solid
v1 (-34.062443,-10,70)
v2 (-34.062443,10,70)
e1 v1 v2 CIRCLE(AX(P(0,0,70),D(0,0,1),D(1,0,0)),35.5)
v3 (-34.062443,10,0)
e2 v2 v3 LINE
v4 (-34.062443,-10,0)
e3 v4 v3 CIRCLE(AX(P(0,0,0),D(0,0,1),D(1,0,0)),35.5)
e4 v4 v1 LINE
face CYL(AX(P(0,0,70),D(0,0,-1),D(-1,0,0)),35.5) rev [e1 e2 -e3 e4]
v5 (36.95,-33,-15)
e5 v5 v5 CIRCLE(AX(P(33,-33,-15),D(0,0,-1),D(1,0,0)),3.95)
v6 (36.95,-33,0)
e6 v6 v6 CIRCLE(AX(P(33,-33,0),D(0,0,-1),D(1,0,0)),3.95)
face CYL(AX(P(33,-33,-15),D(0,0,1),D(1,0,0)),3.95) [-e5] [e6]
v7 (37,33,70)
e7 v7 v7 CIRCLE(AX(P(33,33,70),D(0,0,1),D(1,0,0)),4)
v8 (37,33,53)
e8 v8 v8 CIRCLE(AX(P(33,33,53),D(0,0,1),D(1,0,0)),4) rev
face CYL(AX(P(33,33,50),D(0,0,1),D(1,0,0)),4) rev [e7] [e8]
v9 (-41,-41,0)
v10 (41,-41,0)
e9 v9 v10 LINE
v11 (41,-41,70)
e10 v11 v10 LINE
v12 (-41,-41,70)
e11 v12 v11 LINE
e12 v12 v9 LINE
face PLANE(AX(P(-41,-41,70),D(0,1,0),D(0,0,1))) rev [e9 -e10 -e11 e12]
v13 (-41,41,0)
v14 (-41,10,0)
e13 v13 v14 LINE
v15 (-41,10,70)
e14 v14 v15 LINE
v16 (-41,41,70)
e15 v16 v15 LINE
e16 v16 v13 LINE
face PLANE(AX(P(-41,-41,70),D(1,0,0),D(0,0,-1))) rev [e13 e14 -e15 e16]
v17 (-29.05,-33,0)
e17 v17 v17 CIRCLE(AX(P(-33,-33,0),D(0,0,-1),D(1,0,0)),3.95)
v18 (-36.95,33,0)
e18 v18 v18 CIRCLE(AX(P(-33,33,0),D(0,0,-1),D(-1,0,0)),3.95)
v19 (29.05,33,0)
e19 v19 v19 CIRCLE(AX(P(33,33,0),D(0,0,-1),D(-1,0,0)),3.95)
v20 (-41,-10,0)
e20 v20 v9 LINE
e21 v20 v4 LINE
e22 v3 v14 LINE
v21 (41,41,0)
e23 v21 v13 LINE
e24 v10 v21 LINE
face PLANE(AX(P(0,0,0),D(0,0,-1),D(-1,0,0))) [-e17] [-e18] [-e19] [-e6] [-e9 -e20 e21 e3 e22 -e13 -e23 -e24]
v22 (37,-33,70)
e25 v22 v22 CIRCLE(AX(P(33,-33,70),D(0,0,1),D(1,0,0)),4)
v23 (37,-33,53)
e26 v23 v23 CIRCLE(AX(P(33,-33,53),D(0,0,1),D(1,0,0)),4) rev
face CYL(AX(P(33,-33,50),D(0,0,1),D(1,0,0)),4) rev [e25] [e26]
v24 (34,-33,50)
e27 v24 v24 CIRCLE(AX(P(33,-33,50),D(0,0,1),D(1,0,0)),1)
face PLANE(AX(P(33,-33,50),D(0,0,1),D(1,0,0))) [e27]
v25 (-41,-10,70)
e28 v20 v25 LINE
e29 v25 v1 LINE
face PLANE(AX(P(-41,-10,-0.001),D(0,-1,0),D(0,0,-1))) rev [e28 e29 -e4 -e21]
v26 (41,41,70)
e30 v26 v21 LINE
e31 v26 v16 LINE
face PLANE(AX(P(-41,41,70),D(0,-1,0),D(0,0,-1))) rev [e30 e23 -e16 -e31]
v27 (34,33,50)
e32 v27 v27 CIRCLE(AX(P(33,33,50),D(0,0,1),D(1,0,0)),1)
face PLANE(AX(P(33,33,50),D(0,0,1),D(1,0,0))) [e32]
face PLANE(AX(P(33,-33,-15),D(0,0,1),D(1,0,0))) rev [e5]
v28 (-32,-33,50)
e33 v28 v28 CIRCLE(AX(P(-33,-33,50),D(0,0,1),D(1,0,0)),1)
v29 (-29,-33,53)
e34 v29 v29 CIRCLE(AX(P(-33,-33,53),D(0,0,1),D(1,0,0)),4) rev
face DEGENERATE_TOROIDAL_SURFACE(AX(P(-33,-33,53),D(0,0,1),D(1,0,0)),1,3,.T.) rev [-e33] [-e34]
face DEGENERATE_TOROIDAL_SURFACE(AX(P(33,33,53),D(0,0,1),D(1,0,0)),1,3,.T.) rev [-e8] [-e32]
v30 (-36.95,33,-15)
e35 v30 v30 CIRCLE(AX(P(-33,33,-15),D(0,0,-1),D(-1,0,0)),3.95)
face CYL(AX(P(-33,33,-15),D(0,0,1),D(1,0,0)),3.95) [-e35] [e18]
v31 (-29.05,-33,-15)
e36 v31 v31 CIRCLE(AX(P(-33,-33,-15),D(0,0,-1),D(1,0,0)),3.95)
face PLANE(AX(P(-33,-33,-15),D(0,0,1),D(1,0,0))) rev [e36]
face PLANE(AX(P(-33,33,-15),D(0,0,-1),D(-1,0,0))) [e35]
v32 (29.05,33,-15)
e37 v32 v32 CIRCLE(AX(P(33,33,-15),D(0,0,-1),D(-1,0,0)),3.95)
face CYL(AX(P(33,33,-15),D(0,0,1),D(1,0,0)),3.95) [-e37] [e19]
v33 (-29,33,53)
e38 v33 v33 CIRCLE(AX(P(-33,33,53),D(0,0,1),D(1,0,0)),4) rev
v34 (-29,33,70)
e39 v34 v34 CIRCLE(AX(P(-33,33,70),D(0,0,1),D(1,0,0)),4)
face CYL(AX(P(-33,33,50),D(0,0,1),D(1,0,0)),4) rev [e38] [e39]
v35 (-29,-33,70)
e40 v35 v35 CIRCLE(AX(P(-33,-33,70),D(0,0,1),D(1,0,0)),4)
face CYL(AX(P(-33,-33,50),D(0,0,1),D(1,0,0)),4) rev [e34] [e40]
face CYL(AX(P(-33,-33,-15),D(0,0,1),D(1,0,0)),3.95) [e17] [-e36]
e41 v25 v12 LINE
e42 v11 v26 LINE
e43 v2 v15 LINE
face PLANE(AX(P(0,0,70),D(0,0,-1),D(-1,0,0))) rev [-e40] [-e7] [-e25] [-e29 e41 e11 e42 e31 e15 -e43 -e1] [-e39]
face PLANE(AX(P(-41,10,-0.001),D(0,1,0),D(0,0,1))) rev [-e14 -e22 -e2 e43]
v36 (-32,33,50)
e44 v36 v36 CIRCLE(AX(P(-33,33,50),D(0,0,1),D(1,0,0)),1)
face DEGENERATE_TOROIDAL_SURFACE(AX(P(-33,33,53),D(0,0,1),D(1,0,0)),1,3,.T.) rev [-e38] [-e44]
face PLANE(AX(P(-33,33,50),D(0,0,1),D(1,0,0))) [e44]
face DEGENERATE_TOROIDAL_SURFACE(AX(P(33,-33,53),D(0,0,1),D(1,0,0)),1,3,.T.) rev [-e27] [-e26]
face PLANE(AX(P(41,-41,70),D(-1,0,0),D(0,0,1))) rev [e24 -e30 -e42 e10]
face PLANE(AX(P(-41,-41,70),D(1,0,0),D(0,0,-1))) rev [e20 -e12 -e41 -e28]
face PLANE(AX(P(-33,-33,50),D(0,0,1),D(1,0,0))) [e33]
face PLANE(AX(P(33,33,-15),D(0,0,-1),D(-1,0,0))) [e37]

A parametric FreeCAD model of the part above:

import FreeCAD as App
import Part
import Sketcher

V = App.Vector


def edges_at(feature, points):
    """Names of the edges that pass closest to the given points."""
    edges = feature.Shape.Edges
    near = lambda p: min(range(len(edges)), key=lambda i: edges[i].distToShape(Part.Vertex(*p))[0])
    return sorted({f"Edge{near(p) + 1}" for p in points})

doc = App.newDocument("Part")
body = doc.addObject("PartDesign::Body", "Body")

# Sketch on XY plane
sketch1 = body.newObject("Sketcher::SketchObject", "Sketch")
sketch1.AttachmentSupport = (doc.getObject("XY_Plane"), [""])
sketch1.MapMode = "FlatFace"
sketch1.addGeometry(Part.LineSegment(V(-41, 41, 0), V(-41, -41, 0)), False)
sketch1.addGeometry(Part.LineSegment(V(-41, -41, 0), V(41, -41, 0)), False)
sketch1.addGeometry(Part.LineSegment(V(41, -41, 0), V(41, 41, 0)), False)
sketch1.addGeometry(Part.LineSegment(V(41, 41, 0), V(-41, 41, 0)), False)
sketch1.addGeometry(Part.Circle(V(0, 0, 0), V(0, 0, 1), 35.5), False)
sketch1.addConstraint(Sketcher.Constraint("Coincident", 0, 2, 1, 1))
sketch1.addConstraint(Sketcher.Constraint("Coincident", 1, 2, 2, 1))
sketch1.addConstraint(Sketcher.Constraint("Coincident", 2, 2, 3, 1))
sketch1.addConstraint(Sketcher.Constraint("Coincident", 3, 2, 0, 1))
sketch1.addConstraint(Sketcher.Constraint("Vertical", 0))
sketch1.addConstraint(Sketcher.Constraint("Horizontal", 1))
sketch1.addConstraint(Sketcher.Constraint("Vertical", 2))
sketch1.addConstraint(Sketcher.Constraint("Horizontal", 3))
sketch1.addConstraint(Sketcher.Constraint("Coincident", 4, 3, -1, 1))
sketch1.addConstraint(Sketcher.Constraint("Symmetric", 0, 2, 2, 2, -1, 1))
sketch1.addConstraint(Sketcher.Constraint("Equal", 3, 0))
sketch1.addConstraint(Sketcher.Constraint("Diameter", 4, 71.0))
sketch1.addConstraint(Sketcher.Constraint("DistanceX", 1, 1, 1, 2, 82.0))
pad1 = body.newObject("PartDesign::Pad", "Pad")
pad1.Profile = sketch1
pad1.Length = 70

# Sketch on XY plane
sketch2 = body.newObject("Sketcher::SketchObject", "Sketch001")
sketch2.AttachmentSupport = (doc.getObject("XY_Plane"), [""])
sketch2.MapMode = "FlatFace"
sketch2.AttachmentOffset = App.Placement(V(0, 0, 70), App.Rotation())
sketch2.addGeometry(Part.Circle(V(-33, 33, 0), V(0, 0, 1), 4), False)
sketch2.addGeometry(Part.Circle(V(33, 33, 0), V(0, 0, 1), 4), False)
sketch2.addGeometry(Part.Circle(V(33, -33, 0), V(0, 0, 1), 4), False)
sketch2.addGeometry(Part.Circle(V(-33, -33, 0), V(0, 0, 1), 4), False)
sketch2.addConstraint(Sketcher.Constraint("Equal", 0, 1))
sketch2.addConstraint(Sketcher.Constraint("Equal", 1, 2))
sketch2.addConstraint(Sketcher.Constraint("Equal", 2, 3))
sketch2.addConstraint(Sketcher.Constraint("Symmetric", 0, 3, 2, 3, -1, 1))
sketch2.addConstraint(Sketcher.Constraint("Symmetric", 1, 3, 3, 3, -1, 1))
sketch2.addConstraint(Sketcher.Constraint("Symmetric", 0, 3, 1, 3, -2))
sketch2.addConstraint(Sketcher.Constraint("Diameter", 0, 8.0))
sketch2.addConstraint(Sketcher.Constraint("DistanceX", 0, 3, -1, 1, 33.0))
sketch2.addConstraint(Sketcher.Constraint("DistanceY", -1, 1, 0, 3, 33.0))
pocket1 = body.newObject("PartDesign::Pocket", "Pocket")
pocket1.Profile = sketch2
pocket1.Length = 20
doc.recompute()

fillet = body.newObject("PartDesign::Fillet", "Fillet")
fillet.Base = (pocket1, edges_at(pocket1, [(-37, 33, 50)]))
fillet.Radius = 3
doc.recompute()

fillet2 = body.newObject("PartDesign::Fillet", "Fillet001")
fillet2.Base = (fillet, edges_at(fillet, [(29, 33, 50)]))
fillet2.Radius = 3
doc.recompute()

fillet3 = body.newObject("PartDesign::Fillet", "Fillet002")
fillet3.Base = (fillet2, edges_at(fillet2, [(-37, -33, 50)]))
fillet3.Radius = 3
doc.recompute()

fillet4 = body.newObject("PartDesign::Fillet", "Fillet003")
fillet4.Base = (fillet3, edges_at(fillet3, [(29, -33, 50)]))
fillet4.Radius = 3

# Sketch on XY plane
sketch3 = body.newObject("Sketcher::SketchObject", "Sketch002")
sketch3.AttachmentSupport = (doc.getObject("XY_Plane"), [""])
sketch3.MapMode = "FlatFace"
sketch3.AttachmentOffset = App.Placement(V(0, 0, 70), App.Rotation())
sketch3.addGeometry(Part.LineSegment(V(-41, 10, 0), V(-41, -10, 0)), False)
sketch3.addGeometry(Part.LineSegment(V(-41, -10, 0), V(-33, -10, 0)), False)
sketch3.addGeometry(Part.LineSegment(V(-33, -10, 0), V(-33, 10, 0)), False)
sketch3.addGeometry(Part.LineSegment(V(-33, 10, 0), V(-41, 10, 0)), False)
sketch3.addConstraint(Sketcher.Constraint("Coincident", 0, 2, 1, 1))
sketch3.addConstraint(Sketcher.Constraint("Coincident", 1, 2, 2, 1))
sketch3.addConstraint(Sketcher.Constraint("Coincident", 2, 2, 3, 1))
sketch3.addConstraint(Sketcher.Constraint("Coincident", 3, 2, 0, 1))
sketch3.addConstraint(Sketcher.Constraint("Vertical", 0))
sketch3.addConstraint(Sketcher.Constraint("Horizontal", 1))
sketch3.addConstraint(Sketcher.Constraint("Vertical", 2))
sketch3.addConstraint(Sketcher.Constraint("Horizontal", 3))
sketch3.addConstraint(Sketcher.Constraint("DistanceX", 1, 1, 1, 2, 8.0))
sketch3.addConstraint(Sketcher.Constraint("DistanceY", 0, 2, 0, 1, 20.0))
sketch3.addConstraint(Sketcher.Constraint("DistanceX", 0, 2, -1, 1, 41.0))
sketch3.addConstraint(Sketcher.Constraint("DistanceY", 0, 2, -1, 1, 10.0))
pocket2 = body.newObject("PartDesign::Pocket", "Pocket001")
pocket2.Profile = sketch3
pocket2.Type = "UpToFirst"

# Sketch on XY plane
sketch4 = body.newObject("Sketcher::SketchObject", "Sketch003")
sketch4.AttachmentSupport = (doc.getObject("XY_Plane"), [""])
sketch4.MapMode = "FlatFace"
sketch4.addGeometry(Part.Circle(V(-33, 33, 0), V(0, 0, 1), 3.95), False)
sketch4.addGeometry(Part.Circle(V(33, 33, 0), V(0, 0, 1), 3.95), False)
sketch4.addGeometry(Part.Circle(V(-33, -33, 0), V(0, 0, 1), 3.95), False)
sketch4.addGeometry(Part.Circle(V(33, -33, 0), V(0, 0, 1), 3.95), False)
sketch4.addConstraint(Sketcher.Constraint("Equal", 0, 1))
sketch4.addConstraint(Sketcher.Constraint("Equal", 1, 2))
sketch4.addConstraint(Sketcher.Constraint("Equal", 2, 3))
sketch4.addConstraint(Sketcher.Constraint("Symmetric", 1, 3, 2, 3, -1, 1))
sketch4.addConstraint(Sketcher.Constraint("Symmetric", 0, 3, 3, 3, -1, 1))
sketch4.addConstraint(Sketcher.Constraint("Symmetric", 0, 3, 1, 3, -2))
sketch4.addConstraint(Sketcher.Constraint("Diameter", 0, 7.9))
sketch4.addConstraint(Sketcher.Constraint("DistanceX", 0, 3, -1, 1, 33.0))
sketch4.addConstraint(Sketcher.Constraint("DistanceY", -1, 1, 0, 3, 33.0))
pad2 = body.newObject("PartDesign::Pad", "Pad001")
pad2.Profile = sketch4
pad2.Length = 15
pad2.Reversed = True

doc.recompute()
